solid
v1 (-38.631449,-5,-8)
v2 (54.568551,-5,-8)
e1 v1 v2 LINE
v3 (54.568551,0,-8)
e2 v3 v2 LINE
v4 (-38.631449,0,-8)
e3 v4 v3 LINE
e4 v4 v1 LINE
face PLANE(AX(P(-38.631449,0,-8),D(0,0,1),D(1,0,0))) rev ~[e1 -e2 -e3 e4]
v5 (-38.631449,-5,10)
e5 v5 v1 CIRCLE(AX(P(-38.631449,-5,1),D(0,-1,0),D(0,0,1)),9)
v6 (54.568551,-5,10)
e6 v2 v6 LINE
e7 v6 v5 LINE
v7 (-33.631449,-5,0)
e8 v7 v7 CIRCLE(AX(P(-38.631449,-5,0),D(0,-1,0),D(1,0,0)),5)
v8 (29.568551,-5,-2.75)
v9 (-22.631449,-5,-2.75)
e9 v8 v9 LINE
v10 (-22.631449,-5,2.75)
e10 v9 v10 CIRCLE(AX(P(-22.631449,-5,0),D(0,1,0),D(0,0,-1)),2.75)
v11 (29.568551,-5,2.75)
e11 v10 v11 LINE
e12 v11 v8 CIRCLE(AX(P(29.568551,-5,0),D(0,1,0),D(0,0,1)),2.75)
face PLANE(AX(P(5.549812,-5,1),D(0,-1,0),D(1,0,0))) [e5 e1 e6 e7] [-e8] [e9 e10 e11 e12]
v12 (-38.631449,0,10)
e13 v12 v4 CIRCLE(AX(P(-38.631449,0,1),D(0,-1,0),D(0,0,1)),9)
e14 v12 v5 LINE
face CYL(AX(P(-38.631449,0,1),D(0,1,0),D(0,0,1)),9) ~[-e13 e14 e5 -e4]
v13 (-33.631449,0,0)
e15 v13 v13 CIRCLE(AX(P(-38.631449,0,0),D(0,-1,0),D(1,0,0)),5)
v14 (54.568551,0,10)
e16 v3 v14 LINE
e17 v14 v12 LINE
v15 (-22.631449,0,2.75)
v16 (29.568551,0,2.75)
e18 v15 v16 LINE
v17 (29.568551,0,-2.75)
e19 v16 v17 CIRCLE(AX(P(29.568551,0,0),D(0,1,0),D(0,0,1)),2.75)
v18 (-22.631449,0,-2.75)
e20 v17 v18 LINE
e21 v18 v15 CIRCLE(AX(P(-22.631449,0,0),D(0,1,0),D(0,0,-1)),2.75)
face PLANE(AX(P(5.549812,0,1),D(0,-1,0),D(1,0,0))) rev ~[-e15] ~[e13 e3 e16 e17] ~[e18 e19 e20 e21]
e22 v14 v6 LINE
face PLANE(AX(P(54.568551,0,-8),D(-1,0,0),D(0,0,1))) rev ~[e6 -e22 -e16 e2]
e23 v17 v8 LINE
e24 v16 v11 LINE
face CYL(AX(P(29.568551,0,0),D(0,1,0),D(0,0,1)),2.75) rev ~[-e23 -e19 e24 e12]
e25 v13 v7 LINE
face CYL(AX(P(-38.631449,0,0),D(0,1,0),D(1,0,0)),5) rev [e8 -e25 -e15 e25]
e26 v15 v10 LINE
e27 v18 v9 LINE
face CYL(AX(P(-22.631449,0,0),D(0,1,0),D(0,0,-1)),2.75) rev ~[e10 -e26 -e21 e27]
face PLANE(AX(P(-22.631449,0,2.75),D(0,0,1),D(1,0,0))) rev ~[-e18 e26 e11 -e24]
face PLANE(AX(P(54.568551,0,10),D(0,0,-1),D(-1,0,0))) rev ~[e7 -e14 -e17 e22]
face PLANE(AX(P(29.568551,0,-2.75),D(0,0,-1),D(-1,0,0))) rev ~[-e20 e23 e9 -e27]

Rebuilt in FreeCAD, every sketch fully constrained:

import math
import FreeCAD as App
import Part
import Sketcher
Q = App.Units.Quantity

doc = App.newDocument("Part")
body = doc.addObject("PartDesign::Body", "Body")

# Sketch on XZ plane
sketch1 = body.newObject("Sketcher::SketchObject", "Sketch")
sketch1.AttachmentSupport = (doc.getObject("XZ_Plane"), [""])
sketch1.MapMode = "FlatFace"
sketch1.addGeometry(Part.LineSegment(App.Vector(54.6, 10, 0), App.Vector(-38.6, 10, 0)), False)
sketch1.addGeometry(Part.ArcOfCircle(Part.Circle(App.Vector(-38.6, 1, 0), App.Vector(0, 0, 1), 9), math.radians(90), math.radians(270)), False)
sketch1.addGeometry(Part.LineSegment(App.Vector(-38.6, -8, 0), App.Vector(54.6, -8, 0)), False)
sketch1.addGeometry(Part.LineSegment(App.Vector(54.6, -8, 0), App.Vector(54.6, 10, 0)), False)
sketch1.addGeometry(Part.Circle(App.Vector(-38.6, 0, 0), App.Vector(0, 0, 1), 5), False)
sketch1.addGeometry(Part.LineSegment(App.Vector(-22.6, 2.8, 0), App.Vector(29.6, 2.8, 0)), False)
sketch1.addGeometry(Part.ArcOfCircle(Part.Circle(App.Vector(29.6, 0, 0), App.Vector(0, 0, 1), 2.8), math.radians(-90), math.radians(90)), False)
sketch1.addGeometry(Part.LineSegment(App.Vector(29.6, -2.8, 0), App.Vector(-22.6, -2.8, 0)), False)
sketch1.addGeometry(Part.ArcOfCircle(Part.Circle(App.Vector(-22.6, 0, 0), App.Vector(0, 0, 1), 2.8), math.radians(90), math.radians(270)), False)
sketch1.addConstraint(Sketcher.Constraint("Tangent", 0, 2, 1, 1))
sketch1.addConstraint(Sketcher.Constraint("Tangent", 1, 2, 2, 1))
sketch1.addConstraint(Sketcher.Constraint("Coincident", 2, 2, 3, 1))
sketch1.addConstraint(Sketcher.Constraint("Coincident", 3, 2, 0, 1))
sketch1.addConstraint(Sketcher.Constraint("Tangent", 5, 2, 6, 2))
sketch1.addConstraint(Sketcher.Constraint("Tangent", 6, 1, 7, 1))
sketch1.addConstraint(Sketcher.Constraint("Tangent", 7, 2, 8, 2))
sketch1.addConstraint(Sketcher.Constraint("Tangent", 8, 1, 5, 1))
sketch1.addConstraint(Sketcher.Constraint("Horizontal", 0))
sketch1.addConstraint(Sketcher.Constraint("Horizontal", 2))
sketch1.addConstraint(Sketcher.Constraint("Vertical", 3))
sketch1.addConstraint(Sketcher.Constraint("Horizontal", 5))
sketch1.addConstraint(Sketcher.Constraint("Horizontal", 7))
sketch1.addConstraint(Sketcher.Constraint("PointOnObject", 4, 3, -1))
sketch1.addConstraint(Sketcher.Constraint("PointOnObject", 6, 3, -1))
sketch1.addConstraint(Sketcher.Constraint("Vertical", 1, 3, 4, 3))
sketch1.addConstraint(Sketcher.Constraint("Diameter", 4, Q("10 mm")))
sketch1.addConstraint(Sketcher.Constraint("Radius", 1, Q("9 mm")))
sketch1.addConstraint(Sketcher.Constraint("Radius", 6, Q("2.75 mm")))
sketch1.addConstraint(Sketcher.Constraint("DistanceX", 0, 2, 0, 1, Q("93.2 mm")))
sketch1.addConstraint(Sketcher.Constraint("DistanceX", 5, 1, 5, 2, Q("52.2 mm")))
sketch1.addConstraint(Sketcher.Constraint("DistanceY", -1, 1, 1, 3, Q("1 mm")))
sketch1.addConstraint(Sketcher.Constraint("DistanceX", 4, 3, 8, 3, Q("16 mm")))
sketch1.addConstraint(Sketcher.Constraint("DistanceX", 1, 3, -1, 1, Q("38.631449 mm")))
pad1 = body.newObject("PartDesign::Pad", "Pad")
pad1.Profile = sketch1
pad1.Length = 5

doc.recompute()
